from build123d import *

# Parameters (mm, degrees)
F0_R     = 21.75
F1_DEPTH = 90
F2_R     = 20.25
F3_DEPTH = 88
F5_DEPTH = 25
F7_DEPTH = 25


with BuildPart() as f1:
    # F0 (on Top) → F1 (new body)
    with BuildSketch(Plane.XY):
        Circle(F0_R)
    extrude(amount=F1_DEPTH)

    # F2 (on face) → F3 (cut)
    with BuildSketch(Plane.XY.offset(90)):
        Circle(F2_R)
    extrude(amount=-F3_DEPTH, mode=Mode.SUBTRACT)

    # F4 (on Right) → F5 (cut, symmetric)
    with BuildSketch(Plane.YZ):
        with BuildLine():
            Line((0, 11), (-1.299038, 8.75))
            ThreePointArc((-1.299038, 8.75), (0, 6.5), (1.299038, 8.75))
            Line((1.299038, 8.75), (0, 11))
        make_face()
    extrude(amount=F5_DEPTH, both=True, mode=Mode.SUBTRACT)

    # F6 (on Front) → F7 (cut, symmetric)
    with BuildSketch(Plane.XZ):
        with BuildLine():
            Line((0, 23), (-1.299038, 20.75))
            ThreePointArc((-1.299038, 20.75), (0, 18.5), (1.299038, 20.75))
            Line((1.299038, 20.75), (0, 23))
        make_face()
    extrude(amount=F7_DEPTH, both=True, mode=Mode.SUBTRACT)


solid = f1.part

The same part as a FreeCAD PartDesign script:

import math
import FreeCAD as App
import Part
import Sketcher
Q = App.Units.Quantity

doc = App.newDocument("Part")
body = doc.addObject("PartDesign::Body", "Body")

sketch1 = body.newObject("Sketcher::SketchObject", "Sketch")
sketch1.AttachmentSupport = (doc.getObject("XY_Plane"), [""])
sketch1.MapMode = "FlatFace"
sketch1.addGeometry(Part.Circle(App.Vector(0, 0, 0), App.Vector(0, 0, 1), 22), False)
sketch1.addConstraint(Sketcher.Constraint("Coincident", 0, 3, -1, 1))
sketch1.addConstraint(Sketcher.Constraint("Diameter", 0, Q("43.5 mm")))
pad1 = body.newObject("PartDesign::Pad", "Pad")
pad1.Profile = sketch1
pad1.Length = 90

sketch2 = body.newObject("Sketcher::SketchObject", "Sketch001")
sketch2.AttachmentSupport = (doc.getObject("XY_Plane"), [""])
sketch2.MapMode = "FlatFace"
sketch2.AttachmentOffset = App.Placement(App.Vector(0, 0, 90), App.Rotation())
sketch2.addGeometry(Part.Circle(App.Vector(0, 0, 0), App.Vector(0, 0, 1), 20), False)
sketch2.addConstraint(Sketcher.Constraint("Coincident", 0, 3, -1, 1))
sketch2.addConstraint(Sketcher.Constraint("Diameter", 0, Q("40.5 mm")))
pocket1 = body.newObject("PartDesign::Pocket", "Pocket")
pocket1.Profile = sketch2
pocket1.Length = 88

sketch3 = body.newObject("Sketcher::SketchObject", "Sketch002")
sketch3.AttachmentSupport = (doc.getObject("YZ_Plane"), [""])
sketch3.MapMode = "FlatFace"
sketch3.addGeometry(Part.LineSegment(App.Vector(0, 11, 0), App.Vector(-1.3, 8.8, 0)), False)
sketch3.addGeometry(Part.ArcOfCircle(Part.Circle(App.Vector(0, 8, 0), App.Vector(0, 0, 1), 1.5), math.radians(150), math.radians(390)), False)
sketch3.addGeometry(Part.LineSegment(App.Vector(1.3, 8.8, 0), App.Vector(0, 11, 0)), False)
sketch3.addConstraint(Sketcher.Constraint("Tangent", 0, 2, 1, 1))
sketch3.addConstraint(Sketcher.Constraint("Tangent", 1, 2, 2, 1))
sketch3.addConstraint(Sketcher.Constraint("Coincident", 2, 2, 0, 1))
sketch3.addConstraint(Sketcher.Constraint("Symmetric", 0, 2, 1, 2, -2))
sketch3.addConstraint(Sketcher.Constraint("Radius", 1, Q("1.5 mm")))
sketch3.addConstraint(Sketcher.Constraint("Angle", 0, Q("-119.999998 deg")))
sketch3.addConstraint(Sketcher.Constraint("DistanceY", -1, 1, 1, 3, Q("8 mm")))
pocket2 = body.newObject("PartDesign::Pocket", "Pocket001")
pocket2.Profile = sketch3
pocket2.Length = 50
pocket2.Midplane = True

sketch4 = body.newObject("Sketcher::SketchObject", "Sketch003")
sketch4.AttachmentSupport = (doc.getObject("XZ_Plane"), [""])
sketch4.MapMode = "FlatFace"
sketch4.addGeometry(Part.LineSegment(App.Vector(0, 23, 0), App.Vector(-1.3, 20.8, 0)), False)
sketch4.addGeometry(Part.ArcOfCircle(Part.Circle(App.Vector(0, 20, 0), App.Vector(0, 0, 1), 1.5), math.radians(150), math.radians(390)), False)
sketch4.addGeometry(Part.LineSegment(App.Vector(1.3, 20.8, 0), App.Vector(0, 23, 0)), False)
sketch4.addConstraint(Sketcher.Constraint("Tangent", 0, 2, 1, 1))
sketch4.addConstraint(Sketcher.Constraint("Tangent", 1, 2, 2, 1))
sketch4.addConstraint(Sketcher.Constraint("Coincident", 2, 2, 0, 1))
sketch4.addConstraint(Sketcher.Constraint("Symmetric", 0, 2, 1, 2, -2))
sketch4.addConstraint(Sketcher.Constraint("Radius", 1, Q("1.5 mm")))
sketch4.addConstraint(Sketcher.Constraint("Angle", 0, Q("-119.999998 deg")))
sketch4.addConstraint(Sketcher.Constraint("DistanceY", -1, 1, 1, 3, Q("20 mm")))
pocket3 = body.newObject("PartDesign::Pocket", "Pocket002")
pocket3.Profile = sketch4
pocket3.Length = 50
pocket3.Midplane = True

doc.recompute()
